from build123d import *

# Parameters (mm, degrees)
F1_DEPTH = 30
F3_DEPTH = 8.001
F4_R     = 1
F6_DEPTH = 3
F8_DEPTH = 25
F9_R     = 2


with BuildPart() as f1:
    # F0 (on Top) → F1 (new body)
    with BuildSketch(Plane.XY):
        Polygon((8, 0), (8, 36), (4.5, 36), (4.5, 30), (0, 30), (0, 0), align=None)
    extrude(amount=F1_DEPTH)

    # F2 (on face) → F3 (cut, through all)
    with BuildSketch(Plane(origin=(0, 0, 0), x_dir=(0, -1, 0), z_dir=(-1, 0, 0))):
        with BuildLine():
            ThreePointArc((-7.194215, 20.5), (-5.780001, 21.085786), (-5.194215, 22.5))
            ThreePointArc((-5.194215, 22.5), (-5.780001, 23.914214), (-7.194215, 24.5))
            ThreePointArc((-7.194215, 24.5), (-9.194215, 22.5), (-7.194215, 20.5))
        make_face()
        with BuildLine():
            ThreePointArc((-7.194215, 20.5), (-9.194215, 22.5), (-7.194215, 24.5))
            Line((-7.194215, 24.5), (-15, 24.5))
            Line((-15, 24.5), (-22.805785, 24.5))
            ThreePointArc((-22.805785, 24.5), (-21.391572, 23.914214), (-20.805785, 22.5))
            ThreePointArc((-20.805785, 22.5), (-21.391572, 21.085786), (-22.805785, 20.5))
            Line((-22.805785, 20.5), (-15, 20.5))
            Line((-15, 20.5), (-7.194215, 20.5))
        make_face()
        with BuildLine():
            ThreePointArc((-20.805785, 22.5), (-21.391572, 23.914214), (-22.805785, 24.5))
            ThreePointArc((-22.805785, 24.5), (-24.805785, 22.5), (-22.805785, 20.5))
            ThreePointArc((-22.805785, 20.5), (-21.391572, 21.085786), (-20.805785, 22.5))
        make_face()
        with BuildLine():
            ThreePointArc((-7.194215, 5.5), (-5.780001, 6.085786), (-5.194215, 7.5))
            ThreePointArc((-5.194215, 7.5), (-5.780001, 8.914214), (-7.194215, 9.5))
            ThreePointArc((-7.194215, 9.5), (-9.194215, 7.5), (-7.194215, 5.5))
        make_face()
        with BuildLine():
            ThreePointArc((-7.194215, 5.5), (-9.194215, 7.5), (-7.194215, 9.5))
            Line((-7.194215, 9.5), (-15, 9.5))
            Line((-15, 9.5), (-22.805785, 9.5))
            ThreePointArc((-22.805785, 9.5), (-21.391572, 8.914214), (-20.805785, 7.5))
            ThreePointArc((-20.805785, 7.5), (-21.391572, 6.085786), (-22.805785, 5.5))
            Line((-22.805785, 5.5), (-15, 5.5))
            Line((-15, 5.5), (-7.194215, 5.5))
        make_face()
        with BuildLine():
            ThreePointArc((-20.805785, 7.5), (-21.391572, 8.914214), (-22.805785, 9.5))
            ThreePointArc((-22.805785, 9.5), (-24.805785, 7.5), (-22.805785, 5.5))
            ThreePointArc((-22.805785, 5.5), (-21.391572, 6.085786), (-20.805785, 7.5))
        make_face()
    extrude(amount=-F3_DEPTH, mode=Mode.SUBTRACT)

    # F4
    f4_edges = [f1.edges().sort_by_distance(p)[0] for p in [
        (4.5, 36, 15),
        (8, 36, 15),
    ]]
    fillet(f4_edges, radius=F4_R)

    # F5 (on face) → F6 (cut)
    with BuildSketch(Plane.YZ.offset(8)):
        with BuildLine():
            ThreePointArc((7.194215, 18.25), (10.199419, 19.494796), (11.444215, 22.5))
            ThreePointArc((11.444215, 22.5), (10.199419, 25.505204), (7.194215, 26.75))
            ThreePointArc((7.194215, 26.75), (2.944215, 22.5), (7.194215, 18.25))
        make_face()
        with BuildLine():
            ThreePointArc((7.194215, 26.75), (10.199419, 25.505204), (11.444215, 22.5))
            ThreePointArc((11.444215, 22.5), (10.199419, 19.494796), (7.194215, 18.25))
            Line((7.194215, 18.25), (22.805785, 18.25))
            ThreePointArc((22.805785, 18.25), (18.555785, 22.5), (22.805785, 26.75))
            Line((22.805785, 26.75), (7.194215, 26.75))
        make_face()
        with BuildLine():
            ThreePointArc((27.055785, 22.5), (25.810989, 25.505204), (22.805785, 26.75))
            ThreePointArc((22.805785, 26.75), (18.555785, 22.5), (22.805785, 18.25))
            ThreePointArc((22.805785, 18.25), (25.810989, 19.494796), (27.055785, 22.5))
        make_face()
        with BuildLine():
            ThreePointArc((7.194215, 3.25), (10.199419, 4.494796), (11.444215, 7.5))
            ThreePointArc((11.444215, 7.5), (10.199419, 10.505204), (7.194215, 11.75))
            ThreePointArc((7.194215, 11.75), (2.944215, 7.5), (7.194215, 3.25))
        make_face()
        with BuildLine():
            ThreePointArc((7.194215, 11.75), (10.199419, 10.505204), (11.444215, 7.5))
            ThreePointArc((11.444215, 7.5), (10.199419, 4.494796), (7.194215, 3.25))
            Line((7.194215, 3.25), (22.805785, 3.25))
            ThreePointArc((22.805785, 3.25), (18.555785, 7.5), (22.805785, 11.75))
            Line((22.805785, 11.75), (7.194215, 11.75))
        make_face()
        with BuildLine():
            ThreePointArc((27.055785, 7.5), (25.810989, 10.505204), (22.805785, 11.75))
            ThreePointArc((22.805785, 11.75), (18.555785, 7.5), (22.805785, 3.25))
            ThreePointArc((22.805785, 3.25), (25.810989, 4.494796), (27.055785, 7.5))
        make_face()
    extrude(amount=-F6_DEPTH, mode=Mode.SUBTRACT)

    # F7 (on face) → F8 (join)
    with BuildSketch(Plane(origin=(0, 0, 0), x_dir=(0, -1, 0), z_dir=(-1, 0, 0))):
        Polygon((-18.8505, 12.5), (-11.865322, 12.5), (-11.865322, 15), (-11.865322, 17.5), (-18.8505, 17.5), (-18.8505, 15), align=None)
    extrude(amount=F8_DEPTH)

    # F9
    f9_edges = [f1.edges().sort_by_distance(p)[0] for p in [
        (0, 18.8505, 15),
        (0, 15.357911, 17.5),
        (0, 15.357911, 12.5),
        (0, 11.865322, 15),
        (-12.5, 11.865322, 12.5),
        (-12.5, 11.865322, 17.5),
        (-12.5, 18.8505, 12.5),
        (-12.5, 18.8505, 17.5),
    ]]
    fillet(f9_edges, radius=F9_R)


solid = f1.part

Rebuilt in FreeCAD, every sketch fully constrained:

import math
import FreeCAD as App
import Part
import Sketcher
Q = App.Units.Quantity


def edges_at(feature, points):
    """Names of the edges that pass closest to the given points."""
    edges = feature.Shape.Edges
    near = lambda p: min(range(len(edges)), key=lambda i: edges[i].distToShape(Part.Vertex(*p))[0])
    return sorted({f"Edge{near(p) + 1}" for p in points})

doc = App.newDocument("Part")
body = doc.addObject("PartDesign::Body", "Body")

# Sketch on XY plane
sketch1 = doc.addObject("Sketcher::SketchObject", "Sketch")
body.addObject(sketch1)
sketch1.AttachmentSupport = (doc.XY_Plane, [""])
sketch1.MapMode = "FlatFace"
sketch1.addGeometry(Part.LineSegment(App.Vector(8, 0, 0), App.Vector(8, 36, 0)), False)
sketch1.addGeometry(Part.LineSegment(App.Vector(8, 36, 0), App.Vector(4.5, 36, 0)), False)
sketch1.addGeometry(Part.LineSegment(App.Vector(4.5, 36, 0), App.Vector(4.5, 30, 0)), False)
sketch1.addGeometry(Part.LineSegment(App.Vector(4.5, 30, 0), App.Vector(0, 30, 0)), False)
sketch1.addGeometry(Part.LineSegment(App.Vector(0, 30, 0), App.Vector(0, 0, 0)), False)
sketch1.addGeometry(Part.LineSegment(App.Vector(0, 0, 0), App.Vector(8, 0, 0)), False)
sketch1.addConstraint(Sketcher.Constraint("Coincident", 0, 2, 1, 1))
sketch1.addConstraint(Sketcher.Constraint("Coincident", 1, 2, 2, 1))
sketch1.addConstraint(Sketcher.Constraint("Coincident", 2, 2, 3, 1))
sketch1.addConstraint(Sketcher.Constraint("Coincident", 3, 2, 4, 1))
sketch1.addConstraint(Sketcher.Constraint("Coincident", 4, 2, 5, 1))
sketch1.addConstraint(Sketcher.Constraint("Coincident", 5, 2, 0, 1))
sketch1.addConstraint(Sketcher.Constraint("Vertical", 0))
sketch1.addConstraint(Sketcher.Constraint("Horizontal", 1))
sketch1.addConstraint(Sketcher.Constraint("Vertical", 2))
sketch1.addConstraint(Sketcher.Constraint("Horizontal", 3))
sketch1.addConstraint(Sketcher.Constraint("Vertical", 4))
sketch1.addConstraint(Sketcher.Constraint("Horizontal", 5))
sketch1.addConstraint(Sketcher.Constraint("Coincident", 4, 2, -1, 1))
sketch1.addConstraint(Sketcher.Constraint("DistanceX", 5, 1, 5, 2, Q("8 mm")))
sketch1.addConstraint(Sketcher.Constraint("DistanceY", 0, 1, 0, 2, Q("36 mm")))
sketch1.addConstraint(Sketcher.Constraint("DistanceY", 2, 2, 2, 1, Q("6 mm")))
sketch1.addConstraint(Sketcher.Constraint("DistanceX", 1, 2, 1, 1, Q("3.5 mm")))
pad1 = doc.addObject("PartDesign::Pad", "Pad")
body.addObject(pad1)
pad1.Profile = sketch1
pad1.Length = 30

# Sketch on YZ plane
sketch2 = doc.addObject("Sketcher::SketchObject", "Sketch001")
body.addObject(sketch2)
sketch2.AttachmentSupport = (doc.YZ_Plane, [""])
sketch2.MapMode = "FlatFace"
sketch2.addGeometry(Part.ArcOfCircle(Part.Circle(App.Vector(7.194214, 22.499999, 0), App.Vector(0, 0, 1), 1.999999), math.radians(179.999957), math.radians(270.000043)), False)
sketch2.addGeometry(Part.ArcOfCircle(Part.Circle(App.Vector(7.194214, 22.500001, 0), App.Vector(0, 0, 1), 1.999999), math.radians(89.999957), math.radians(180.000043)), False)
sketch2.addGeometry(Part.LineSegment(App.Vector(7.194215, 24.5, 0), App.Vector(22.805785, 24.5, 0)), False)
sketch2.addGeometry(Part.ArcOfCircle(Part.Circle(App.Vector(22.805785, 22.5, 0), App.Vector(0, 0, 1), 2), math.radians(-90), math.radians(90)), False)
sketch2.addGeometry(Part.LineSegment(App.Vector(22.805785, 20.5, 0), App.Vector(7.194215, 20.5, 0)), False)
sketch2.addGeometry(Part.ArcOfCircle(Part.Circle(App.Vector(7.194214, 7.499999, 0), App.Vector(0, 0, 1), 1.999999), math.radians(179.999957), math.radians(270.000043)), False)
sketch2.addGeometry(Part.ArcOfCircle(Part.Circle(App.Vector(7.194214, 7.500001, 0), App.Vector(0, 0, 1), 1.999999), math.radians(89.999957), math.radians(180.000043)), False)
sketch2.addGeometry(Part.LineSegment(App.Vector(7.194215, 9.5, 0), App.Vector(22.805785, 9.5, 0)), False)
sketch2.addGeometry(Part.ArcOfCircle(Part.Circle(App.Vector(22.805785, 7.5, 0), App.Vector(0, 0, 1), 2), math.radians(-90), math.radians(90)), False)
sketch2.addGeometry(Part.LineSegment(App.Vector(22.805785, 5.5, 0), App.Vector(7.194215, 5.5, 0)), False)
sketch2.addConstraint(Sketcher.Constraint("Tangent", 0, 1, 1, 2))
sketch2.addConstraint(Sketcher.Constraint("Tangent", 1, 1, 2, 1))
sketch2.addConstraint(Sketcher.Constraint("Tangent", 2, 2, 3, 2))
sketch2.addConstraint(Sketcher.Constraint("Tangent", 3, 1, 4, 1))
sketch2.addConstraint(Sketcher.Constraint("Tangent", 4, 2, 0, 2))
sketch2.addConstraint(Sketcher.Constraint("Tangent", 5, 1, 6, 2))
sketch2.addConstraint(Sketcher.Constraint("Tangent", 6, 1, 7, 1))
sketch2.addConstraint(Sketcher.Constraint("Tangent", 7, 2, 8, 2))
sketch2.addConstraint(Sketcher.Constraint("Tangent", 8, 1, 9, 1))
sketch2.addConstraint(Sketcher.Constraint("Tangent", 9, 2, 5, 2))
sketch2.addConstraint(Sketcher.Constraint("Horizontal", 2))
sketch2.addConstraint(Sketcher.Constraint("Horizontal", 4))
sketch2.addConstraint(Sketcher.Constraint("Horizontal", 7))
sketch2.addConstraint(Sketcher.Constraint("Horizontal", 9))
sketch2.addConstraint(Sketcher.Constraint("Equal", 0, 1))
sketch2.addConstraint(Sketcher.Constraint("Equal", 3, 5))
sketch2.addConstraint(Sketcher.Constraint("Equal", 5, 6))
sketch2.addConstraint(Sketcher.Constraint("Horizontal", 3, 3, 0, 1))
sketch2.addConstraint(Sketcher.Constraint("Horizontal", 8, 3, 5, 1))
sketch2.addConstraint(Sketcher.Constraint("Vertical", 1, 3, 5, 3))
sketch2.addConstraint(Sketcher.Constraint("Vertical", 3, 3, 8, 3))
sketch2.addConstraint(Sketcher.Constraint("Radius", 0, Q("1.999999 mm")))
sketch2.addConstraint(Sketcher.Constraint("DistanceY", 5, 3, 0, 3, Q("15 mm")))
sketch2.addConstraint(Sketcher.Constraint("DistanceY", -1, 1, 0, 3, Q("22.499999 mm")))
sketch2.addConstraint(Sketcher.Constraint("DistanceX", 2, 1, 2, 2, Q("15.61157 mm")))
sketch2.addConstraint(Sketcher.Constraint("DistanceX", -1, 1, 0, 3, Q("7.194214 mm")))
pocket1 = doc.addObject("PartDesign::Pocket", "Pocket")
body.addObject(pocket1)
pocket1.Profile = sketch2
pocket1.Type = "ThroughAll"
pocket1.Reversed = True
doc.recompute()

fillet = doc.addObject("PartDesign::Fillet", "Fillet")
body.addObject(fillet)
fillet.Base = (pocket1, edges_at(pocket1, [(4.5, 36, 15), (8, 36, 15)]))
fillet.Radius = 1

# Sketch on YZ plane
sketch3 = doc.addObject("Sketcher::SketchObject", "Sketch002")
body.addObject(sketch3)
sketch3.AttachmentSupport = (doc.YZ_Plane, [""])
sketch3.MapMode = "FlatFace"
sketch3.AttachmentOffset = App.Placement(App.Vector(0, 0, 8), App.Rotation())
sketch3.addGeometry(Part.ArcOfCircle(Part.Circle(App.Vector(7.194215, 22.5, 0), App.Vector(0, 0, 1), 4.25), math.radians(90), math.radians(270)), False)
sketch3.addGeometry(Part.LineSegment(App.Vector(7.194215, 18.25, 0), App.Vector(22.805785, 18.25, 0)), False)
sketch3.addGeometry(Part.ArcOfCircle(Part.Circle(App.Vector(22.805786, 22.499999, 0), App.Vector(0, 0, 1), 4.249999), math.radians(-90.000008), math.radians(0.000008)), False)
sketch3.addGeometry(Part.ArcOfCircle(Part.Circle(App.Vector(22.805786, 22.500001, 0), App.Vector(0, 0, 1), 4.249999), math.radians(-0.000008), math.radians(90.000008)), False)
sketch3.addGeometry(Part.LineSegment(App.Vector(22.805785, 26.75, 0), App.Vector(7.194215, 26.75, 0)), False)
sketch3.addGeometry(Part.ArcOfCircle(Part.Circle(App.Vector(7.194215, 7.5, 0), App.Vector(0, 0, 1), 4.25), math.radians(90), math.radians(270)), False)
sketch3.addGeometry(Part.LineSegment(App.Vector(7.194215, 3.25, 0), App.Vector(22.805785, 3.25, 0)), False)
sketch3.addGeometry(Part.ArcOfCircle(Part.Circle(App.Vector(22.805786, 7.499999, 0), App.Vector(0, 0, 1), 4.249999), math.radians(-90.000008), math.radians(0.000008)), False)
sketch3.addGeometry(Part.ArcOfCircle(Part.Circle(App.Vector(22.805786, 7.500001, 0), App.Vector(0, 0, 1), 4.249999), math.radians(-0.000008), math.radians(90.000008)), False)
sketch3.addGeometry(Part.LineSegment(App.Vector(22.805785, 11.75, 0), App.Vector(7.194215, 11.75, 0)), False)
sketch3.addConstraint(Sketcher.Constraint("Tangent", 0, 2, 1, 1))
sketch3.addConstraint(Sketcher.Constraint("Tangent", 1, 2, 2, 1))
sketch3.addConstraint(Sketcher.Constraint("Tangent", 2, 2, 3, 1))
sketch3.addConstraint(Sketcher.Constraint("Tangent", 3, 2, 4, 1))
sketch3.addConstraint(Sketcher.Constraint("Tangent", 4, 2, 0, 1))
sketch3.addConstraint(Sketcher.Constraint("Tangent", 5, 2, 6, 1))
sketch3.addConstraint(Sketcher.Constraint("Tangent", 6, 2, 7, 1))
sketch3.addConstraint(Sketcher.Constraint("Tangent", 7, 2, 8, 1))
sketch3.addConstraint(Sketcher.Constraint("Tangent", 8, 2, 9, 1))
sketch3.addConstraint(Sketcher.Constraint("Tangent", 9, 2, 5, 1))
sketch3.addConstraint(Sketcher.Constraint("Horizontal", 1))
sketch3.addConstraint(Sketcher.Constraint("Horizontal", 4))
sketch3.addConstraint(Sketcher.Constraint("Horizontal", 6))
sketch3.addConstraint(Sketcher.Constraint("Horizontal", 9))
sketch3.addConstraint(Sketcher.Constraint("Equal", 0, 2))
sketch3.addConstraint(Sketcher.Constraint("Equal", 3, 5))
sketch3.addConstraint(Sketcher.Constraint("Equal", 5, 7))
sketch3.addConstraint(Sketcher.Constraint("Horizontal", 3, 3, 2, 2))
sketch3.addConstraint(Sketcher.Constraint("Horizontal", 8, 3, 7, 2))
sketch3.addConstraint(Sketcher.Constraint("Vertical", 0, 3, 5, 3))
sketch3.addConstraint(Sketcher.Constraint("Vertical", 3, 3, 7, 3))
sketch3.addConstraint(Sketcher.Constraint("Radius", 0, Q("4.25 mm")))
sketch3.addConstraint(Sketcher.Constraint("DistanceY", 5, 3, 0, 3, Q("15 mm")))
sketch3.addConstraint(Sketcher.Constraint("DistanceY", -1, 1, 0, 3, Q("22.5 mm")))
sketch3.addConstraint(Sketcher.Constraint("DistanceX", 1, 1, 1, 2, Q("15.61157 mm")))
sketch3.addConstraint(Sketcher.Constraint("DistanceX", -1, 1, 0, 3, Q("7.194215 mm")))
pocket2 = doc.addObject("PartDesign::Pocket", "Pocket001")
body.addObject(pocket2)
pocket2.Profile = sketch3
pocket2.Length = 3

# Sketch on YZ plane
sketch4 = doc.addObject("Sketcher::SketchObject", "Sketch003")
body.addObject(sketch4)
sketch4.AttachmentSupport = (doc.YZ_Plane, [""])
sketch4.MapMode = "FlatFace"
sketch4.addGeometry(Part.LineSegment(App.Vector(18.8505, 12.5, 0), App.Vector(11.865322, 12.5, 0)), False)
sketch4.addGeometry(Part.LineSegment(App.Vector(11.865322, 12.5, 0), App.Vector(11.865322, 17.5, 0)), False)
sketch4.addGeometry(Part.LineSegment(App.Vector(11.865322, 17.5, 0), App.Vector(18.8505, 17.5, 0)), False)
sketch4.addGeometry(Part.LineSegment(App.Vector(18.8505, 17.5, 0), App.Vector(18.8505, 12.5, 0)), False)
sketch4.addConstraint(Sketcher.Constraint("Coincident", 0, 2, 1, 1))
sketch4.addConstraint(Sketcher.Constraint("Coincident", 1, 2, 2, 1))
sketch4.addConstraint(Sketcher.Constraint("Coincident", 2, 2, 3, 1))
sketch4.addConstraint(Sketcher.Constraint("Coincident", 3, 2, 0, 1))
sketch4.addConstraint(Sketcher.Constraint("Horizontal", 0))
sketch4.addConstraint(Sketcher.Constraint("Vertical", 1))
sketch4.addConstraint(Sketcher.Constraint("Horizontal", 2))
sketch4.addConstraint(Sketcher.Constraint("Vertical", 3))
sketch4.addConstraint(Sketcher.Constraint("DistanceY", 1, 1, 1, 2, Q("5 mm")))
sketch4.addConstraint(Sketcher.Constraint("DistanceY", -1, 1, 0, 2, Q("12.5 mm")))
sketch4.addConstraint(Sketcher.Constraint("DistanceX", -1, 1, 2, 2, Q("18.8505 mm")))
sketch4.addConstraint(Sketcher.Constraint("DistanceX", 0, 2, 0, 1, Q("6.985178 mm")))
pad2 = doc.addObject("PartDesign::Pad", "Pad001")
body.addObject(pad2)
pad2.Profile = sketch4
pad2.Length = 25
pad2.Reversed = True
doc.recompute()

fillet2 = doc.addObject("PartDesign::Fillet", "Fillet001")
body.addObject(fillet2)
fillet2.Base = (pad2, edges_at(pad2, [
    (0, 18.851, 15),
    (0, 15.358, 17.5),
    (0, 15.358, 12.5),
    (0, 11.865, 15),
    (-12.5, 11.865, 12.5),
    (-12.5, 11.865, 17.5),
    (-12.5, 18.851, 12.5),
    (-12.5, 18.851, 17.5),
]))
fillet2.Radius = 2

doc.recompute()
